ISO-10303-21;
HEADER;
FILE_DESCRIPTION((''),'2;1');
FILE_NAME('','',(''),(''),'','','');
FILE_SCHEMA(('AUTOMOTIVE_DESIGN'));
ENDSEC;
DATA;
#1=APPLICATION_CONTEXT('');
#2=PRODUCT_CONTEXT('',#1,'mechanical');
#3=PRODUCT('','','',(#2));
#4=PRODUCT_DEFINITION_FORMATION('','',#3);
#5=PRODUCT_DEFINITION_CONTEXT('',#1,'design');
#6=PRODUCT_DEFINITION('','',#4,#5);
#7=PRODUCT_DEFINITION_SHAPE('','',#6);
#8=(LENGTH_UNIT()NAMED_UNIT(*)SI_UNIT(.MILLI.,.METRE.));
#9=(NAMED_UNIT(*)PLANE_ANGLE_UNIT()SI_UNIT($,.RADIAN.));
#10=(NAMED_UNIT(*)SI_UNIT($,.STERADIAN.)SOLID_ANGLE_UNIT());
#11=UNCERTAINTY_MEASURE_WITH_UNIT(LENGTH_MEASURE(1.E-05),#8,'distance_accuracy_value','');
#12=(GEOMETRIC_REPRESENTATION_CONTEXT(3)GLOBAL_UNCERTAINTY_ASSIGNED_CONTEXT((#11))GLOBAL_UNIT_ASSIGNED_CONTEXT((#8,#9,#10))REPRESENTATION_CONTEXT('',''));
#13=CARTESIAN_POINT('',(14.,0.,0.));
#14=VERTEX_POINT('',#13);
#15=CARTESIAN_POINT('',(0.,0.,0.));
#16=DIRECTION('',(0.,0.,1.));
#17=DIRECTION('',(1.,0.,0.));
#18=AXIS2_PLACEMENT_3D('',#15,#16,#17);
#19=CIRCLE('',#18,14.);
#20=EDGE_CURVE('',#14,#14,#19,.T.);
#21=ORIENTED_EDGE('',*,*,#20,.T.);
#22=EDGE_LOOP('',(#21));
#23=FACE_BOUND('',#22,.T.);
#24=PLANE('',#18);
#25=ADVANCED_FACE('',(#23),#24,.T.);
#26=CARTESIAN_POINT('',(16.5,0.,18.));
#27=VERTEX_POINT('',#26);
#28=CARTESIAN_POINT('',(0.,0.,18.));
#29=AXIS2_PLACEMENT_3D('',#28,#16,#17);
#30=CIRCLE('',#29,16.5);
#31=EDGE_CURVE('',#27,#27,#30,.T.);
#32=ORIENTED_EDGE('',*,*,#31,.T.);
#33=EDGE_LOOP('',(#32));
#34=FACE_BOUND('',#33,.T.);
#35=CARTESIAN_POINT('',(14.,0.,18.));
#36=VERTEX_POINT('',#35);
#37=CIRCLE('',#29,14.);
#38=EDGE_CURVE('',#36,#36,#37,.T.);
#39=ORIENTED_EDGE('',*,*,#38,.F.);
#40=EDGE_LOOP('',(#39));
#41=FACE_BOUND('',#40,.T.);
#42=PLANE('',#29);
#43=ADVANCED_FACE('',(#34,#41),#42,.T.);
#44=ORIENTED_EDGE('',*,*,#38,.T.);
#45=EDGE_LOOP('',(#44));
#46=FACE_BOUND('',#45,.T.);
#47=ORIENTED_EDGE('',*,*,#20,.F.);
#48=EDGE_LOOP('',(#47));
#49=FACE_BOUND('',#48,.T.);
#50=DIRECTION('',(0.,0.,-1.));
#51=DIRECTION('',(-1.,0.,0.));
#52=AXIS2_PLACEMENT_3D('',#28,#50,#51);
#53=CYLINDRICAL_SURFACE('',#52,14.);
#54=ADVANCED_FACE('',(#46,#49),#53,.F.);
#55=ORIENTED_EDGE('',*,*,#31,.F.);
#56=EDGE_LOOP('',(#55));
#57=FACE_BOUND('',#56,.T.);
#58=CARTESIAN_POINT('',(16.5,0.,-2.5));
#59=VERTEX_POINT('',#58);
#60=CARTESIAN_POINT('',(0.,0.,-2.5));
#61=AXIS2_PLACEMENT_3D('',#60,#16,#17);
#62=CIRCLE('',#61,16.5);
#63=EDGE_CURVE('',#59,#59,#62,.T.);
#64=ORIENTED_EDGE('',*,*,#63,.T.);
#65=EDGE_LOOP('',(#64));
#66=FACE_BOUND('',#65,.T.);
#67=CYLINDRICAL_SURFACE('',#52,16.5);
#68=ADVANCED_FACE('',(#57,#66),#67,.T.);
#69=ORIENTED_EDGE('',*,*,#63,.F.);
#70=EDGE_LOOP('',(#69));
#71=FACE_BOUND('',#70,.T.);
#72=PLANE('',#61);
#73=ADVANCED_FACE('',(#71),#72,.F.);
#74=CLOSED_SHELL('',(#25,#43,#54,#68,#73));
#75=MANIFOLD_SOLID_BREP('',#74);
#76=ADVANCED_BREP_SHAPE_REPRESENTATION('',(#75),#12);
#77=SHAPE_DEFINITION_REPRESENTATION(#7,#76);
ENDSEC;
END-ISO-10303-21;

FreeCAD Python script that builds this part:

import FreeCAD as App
import Part
import Sketcher
from FreeCAD import Vector
Q = App.Units.Quantity


def faces_at(feature, points):
    """Names of the faces that lie closest to the given points."""
    faces = feature.Shape.Faces
    near = lambda p: min(range(len(faces)), key=lambda i: faces[i].distToShape(Part.Vertex(*p))[0])
    return sorted({f"Face{near(p) + 1}" for p in points})

doc = App.newDocument("Part")
body = doc.addObject("PartDesign::Body", "Body")

# Sketch on XY plane
sketch1 = doc.addObject("Sketcher::SketchObject", "Sketch")
body.addObject(sketch1)
sketch1.AttachmentSupport = (doc.XY_Plane, [""])
sketch1.MapMode = "FlatFace"
sketch1.addGeometry(Part.Circle(Vector(0, 0, 0), Vector(0, 0, 1), 14), False)
sketch1.addConstraint([
    Sketcher.Constraint("Coincident", 0, 3, -1, 1),
    Sketcher.Constraint("Diameter", 0, Q("28 mm")),
])
pad1 = doc.addObject("PartDesign::Pad", "Pad")
body.addObject(pad1)
pad1.Profile = sketch1
pad1.Length = 18
doc.recompute()

thickness = doc.addObject("PartDesign::Thickness", "Thickness")
body.addObject(thickness)
thickness.Base = (pad1, faces_at(pad1, [(0, 0, 18)]))
thickness.Value = 2.5
thickness.Reversed = False
thickness.Join = "Intersection"

doc.recompute()
